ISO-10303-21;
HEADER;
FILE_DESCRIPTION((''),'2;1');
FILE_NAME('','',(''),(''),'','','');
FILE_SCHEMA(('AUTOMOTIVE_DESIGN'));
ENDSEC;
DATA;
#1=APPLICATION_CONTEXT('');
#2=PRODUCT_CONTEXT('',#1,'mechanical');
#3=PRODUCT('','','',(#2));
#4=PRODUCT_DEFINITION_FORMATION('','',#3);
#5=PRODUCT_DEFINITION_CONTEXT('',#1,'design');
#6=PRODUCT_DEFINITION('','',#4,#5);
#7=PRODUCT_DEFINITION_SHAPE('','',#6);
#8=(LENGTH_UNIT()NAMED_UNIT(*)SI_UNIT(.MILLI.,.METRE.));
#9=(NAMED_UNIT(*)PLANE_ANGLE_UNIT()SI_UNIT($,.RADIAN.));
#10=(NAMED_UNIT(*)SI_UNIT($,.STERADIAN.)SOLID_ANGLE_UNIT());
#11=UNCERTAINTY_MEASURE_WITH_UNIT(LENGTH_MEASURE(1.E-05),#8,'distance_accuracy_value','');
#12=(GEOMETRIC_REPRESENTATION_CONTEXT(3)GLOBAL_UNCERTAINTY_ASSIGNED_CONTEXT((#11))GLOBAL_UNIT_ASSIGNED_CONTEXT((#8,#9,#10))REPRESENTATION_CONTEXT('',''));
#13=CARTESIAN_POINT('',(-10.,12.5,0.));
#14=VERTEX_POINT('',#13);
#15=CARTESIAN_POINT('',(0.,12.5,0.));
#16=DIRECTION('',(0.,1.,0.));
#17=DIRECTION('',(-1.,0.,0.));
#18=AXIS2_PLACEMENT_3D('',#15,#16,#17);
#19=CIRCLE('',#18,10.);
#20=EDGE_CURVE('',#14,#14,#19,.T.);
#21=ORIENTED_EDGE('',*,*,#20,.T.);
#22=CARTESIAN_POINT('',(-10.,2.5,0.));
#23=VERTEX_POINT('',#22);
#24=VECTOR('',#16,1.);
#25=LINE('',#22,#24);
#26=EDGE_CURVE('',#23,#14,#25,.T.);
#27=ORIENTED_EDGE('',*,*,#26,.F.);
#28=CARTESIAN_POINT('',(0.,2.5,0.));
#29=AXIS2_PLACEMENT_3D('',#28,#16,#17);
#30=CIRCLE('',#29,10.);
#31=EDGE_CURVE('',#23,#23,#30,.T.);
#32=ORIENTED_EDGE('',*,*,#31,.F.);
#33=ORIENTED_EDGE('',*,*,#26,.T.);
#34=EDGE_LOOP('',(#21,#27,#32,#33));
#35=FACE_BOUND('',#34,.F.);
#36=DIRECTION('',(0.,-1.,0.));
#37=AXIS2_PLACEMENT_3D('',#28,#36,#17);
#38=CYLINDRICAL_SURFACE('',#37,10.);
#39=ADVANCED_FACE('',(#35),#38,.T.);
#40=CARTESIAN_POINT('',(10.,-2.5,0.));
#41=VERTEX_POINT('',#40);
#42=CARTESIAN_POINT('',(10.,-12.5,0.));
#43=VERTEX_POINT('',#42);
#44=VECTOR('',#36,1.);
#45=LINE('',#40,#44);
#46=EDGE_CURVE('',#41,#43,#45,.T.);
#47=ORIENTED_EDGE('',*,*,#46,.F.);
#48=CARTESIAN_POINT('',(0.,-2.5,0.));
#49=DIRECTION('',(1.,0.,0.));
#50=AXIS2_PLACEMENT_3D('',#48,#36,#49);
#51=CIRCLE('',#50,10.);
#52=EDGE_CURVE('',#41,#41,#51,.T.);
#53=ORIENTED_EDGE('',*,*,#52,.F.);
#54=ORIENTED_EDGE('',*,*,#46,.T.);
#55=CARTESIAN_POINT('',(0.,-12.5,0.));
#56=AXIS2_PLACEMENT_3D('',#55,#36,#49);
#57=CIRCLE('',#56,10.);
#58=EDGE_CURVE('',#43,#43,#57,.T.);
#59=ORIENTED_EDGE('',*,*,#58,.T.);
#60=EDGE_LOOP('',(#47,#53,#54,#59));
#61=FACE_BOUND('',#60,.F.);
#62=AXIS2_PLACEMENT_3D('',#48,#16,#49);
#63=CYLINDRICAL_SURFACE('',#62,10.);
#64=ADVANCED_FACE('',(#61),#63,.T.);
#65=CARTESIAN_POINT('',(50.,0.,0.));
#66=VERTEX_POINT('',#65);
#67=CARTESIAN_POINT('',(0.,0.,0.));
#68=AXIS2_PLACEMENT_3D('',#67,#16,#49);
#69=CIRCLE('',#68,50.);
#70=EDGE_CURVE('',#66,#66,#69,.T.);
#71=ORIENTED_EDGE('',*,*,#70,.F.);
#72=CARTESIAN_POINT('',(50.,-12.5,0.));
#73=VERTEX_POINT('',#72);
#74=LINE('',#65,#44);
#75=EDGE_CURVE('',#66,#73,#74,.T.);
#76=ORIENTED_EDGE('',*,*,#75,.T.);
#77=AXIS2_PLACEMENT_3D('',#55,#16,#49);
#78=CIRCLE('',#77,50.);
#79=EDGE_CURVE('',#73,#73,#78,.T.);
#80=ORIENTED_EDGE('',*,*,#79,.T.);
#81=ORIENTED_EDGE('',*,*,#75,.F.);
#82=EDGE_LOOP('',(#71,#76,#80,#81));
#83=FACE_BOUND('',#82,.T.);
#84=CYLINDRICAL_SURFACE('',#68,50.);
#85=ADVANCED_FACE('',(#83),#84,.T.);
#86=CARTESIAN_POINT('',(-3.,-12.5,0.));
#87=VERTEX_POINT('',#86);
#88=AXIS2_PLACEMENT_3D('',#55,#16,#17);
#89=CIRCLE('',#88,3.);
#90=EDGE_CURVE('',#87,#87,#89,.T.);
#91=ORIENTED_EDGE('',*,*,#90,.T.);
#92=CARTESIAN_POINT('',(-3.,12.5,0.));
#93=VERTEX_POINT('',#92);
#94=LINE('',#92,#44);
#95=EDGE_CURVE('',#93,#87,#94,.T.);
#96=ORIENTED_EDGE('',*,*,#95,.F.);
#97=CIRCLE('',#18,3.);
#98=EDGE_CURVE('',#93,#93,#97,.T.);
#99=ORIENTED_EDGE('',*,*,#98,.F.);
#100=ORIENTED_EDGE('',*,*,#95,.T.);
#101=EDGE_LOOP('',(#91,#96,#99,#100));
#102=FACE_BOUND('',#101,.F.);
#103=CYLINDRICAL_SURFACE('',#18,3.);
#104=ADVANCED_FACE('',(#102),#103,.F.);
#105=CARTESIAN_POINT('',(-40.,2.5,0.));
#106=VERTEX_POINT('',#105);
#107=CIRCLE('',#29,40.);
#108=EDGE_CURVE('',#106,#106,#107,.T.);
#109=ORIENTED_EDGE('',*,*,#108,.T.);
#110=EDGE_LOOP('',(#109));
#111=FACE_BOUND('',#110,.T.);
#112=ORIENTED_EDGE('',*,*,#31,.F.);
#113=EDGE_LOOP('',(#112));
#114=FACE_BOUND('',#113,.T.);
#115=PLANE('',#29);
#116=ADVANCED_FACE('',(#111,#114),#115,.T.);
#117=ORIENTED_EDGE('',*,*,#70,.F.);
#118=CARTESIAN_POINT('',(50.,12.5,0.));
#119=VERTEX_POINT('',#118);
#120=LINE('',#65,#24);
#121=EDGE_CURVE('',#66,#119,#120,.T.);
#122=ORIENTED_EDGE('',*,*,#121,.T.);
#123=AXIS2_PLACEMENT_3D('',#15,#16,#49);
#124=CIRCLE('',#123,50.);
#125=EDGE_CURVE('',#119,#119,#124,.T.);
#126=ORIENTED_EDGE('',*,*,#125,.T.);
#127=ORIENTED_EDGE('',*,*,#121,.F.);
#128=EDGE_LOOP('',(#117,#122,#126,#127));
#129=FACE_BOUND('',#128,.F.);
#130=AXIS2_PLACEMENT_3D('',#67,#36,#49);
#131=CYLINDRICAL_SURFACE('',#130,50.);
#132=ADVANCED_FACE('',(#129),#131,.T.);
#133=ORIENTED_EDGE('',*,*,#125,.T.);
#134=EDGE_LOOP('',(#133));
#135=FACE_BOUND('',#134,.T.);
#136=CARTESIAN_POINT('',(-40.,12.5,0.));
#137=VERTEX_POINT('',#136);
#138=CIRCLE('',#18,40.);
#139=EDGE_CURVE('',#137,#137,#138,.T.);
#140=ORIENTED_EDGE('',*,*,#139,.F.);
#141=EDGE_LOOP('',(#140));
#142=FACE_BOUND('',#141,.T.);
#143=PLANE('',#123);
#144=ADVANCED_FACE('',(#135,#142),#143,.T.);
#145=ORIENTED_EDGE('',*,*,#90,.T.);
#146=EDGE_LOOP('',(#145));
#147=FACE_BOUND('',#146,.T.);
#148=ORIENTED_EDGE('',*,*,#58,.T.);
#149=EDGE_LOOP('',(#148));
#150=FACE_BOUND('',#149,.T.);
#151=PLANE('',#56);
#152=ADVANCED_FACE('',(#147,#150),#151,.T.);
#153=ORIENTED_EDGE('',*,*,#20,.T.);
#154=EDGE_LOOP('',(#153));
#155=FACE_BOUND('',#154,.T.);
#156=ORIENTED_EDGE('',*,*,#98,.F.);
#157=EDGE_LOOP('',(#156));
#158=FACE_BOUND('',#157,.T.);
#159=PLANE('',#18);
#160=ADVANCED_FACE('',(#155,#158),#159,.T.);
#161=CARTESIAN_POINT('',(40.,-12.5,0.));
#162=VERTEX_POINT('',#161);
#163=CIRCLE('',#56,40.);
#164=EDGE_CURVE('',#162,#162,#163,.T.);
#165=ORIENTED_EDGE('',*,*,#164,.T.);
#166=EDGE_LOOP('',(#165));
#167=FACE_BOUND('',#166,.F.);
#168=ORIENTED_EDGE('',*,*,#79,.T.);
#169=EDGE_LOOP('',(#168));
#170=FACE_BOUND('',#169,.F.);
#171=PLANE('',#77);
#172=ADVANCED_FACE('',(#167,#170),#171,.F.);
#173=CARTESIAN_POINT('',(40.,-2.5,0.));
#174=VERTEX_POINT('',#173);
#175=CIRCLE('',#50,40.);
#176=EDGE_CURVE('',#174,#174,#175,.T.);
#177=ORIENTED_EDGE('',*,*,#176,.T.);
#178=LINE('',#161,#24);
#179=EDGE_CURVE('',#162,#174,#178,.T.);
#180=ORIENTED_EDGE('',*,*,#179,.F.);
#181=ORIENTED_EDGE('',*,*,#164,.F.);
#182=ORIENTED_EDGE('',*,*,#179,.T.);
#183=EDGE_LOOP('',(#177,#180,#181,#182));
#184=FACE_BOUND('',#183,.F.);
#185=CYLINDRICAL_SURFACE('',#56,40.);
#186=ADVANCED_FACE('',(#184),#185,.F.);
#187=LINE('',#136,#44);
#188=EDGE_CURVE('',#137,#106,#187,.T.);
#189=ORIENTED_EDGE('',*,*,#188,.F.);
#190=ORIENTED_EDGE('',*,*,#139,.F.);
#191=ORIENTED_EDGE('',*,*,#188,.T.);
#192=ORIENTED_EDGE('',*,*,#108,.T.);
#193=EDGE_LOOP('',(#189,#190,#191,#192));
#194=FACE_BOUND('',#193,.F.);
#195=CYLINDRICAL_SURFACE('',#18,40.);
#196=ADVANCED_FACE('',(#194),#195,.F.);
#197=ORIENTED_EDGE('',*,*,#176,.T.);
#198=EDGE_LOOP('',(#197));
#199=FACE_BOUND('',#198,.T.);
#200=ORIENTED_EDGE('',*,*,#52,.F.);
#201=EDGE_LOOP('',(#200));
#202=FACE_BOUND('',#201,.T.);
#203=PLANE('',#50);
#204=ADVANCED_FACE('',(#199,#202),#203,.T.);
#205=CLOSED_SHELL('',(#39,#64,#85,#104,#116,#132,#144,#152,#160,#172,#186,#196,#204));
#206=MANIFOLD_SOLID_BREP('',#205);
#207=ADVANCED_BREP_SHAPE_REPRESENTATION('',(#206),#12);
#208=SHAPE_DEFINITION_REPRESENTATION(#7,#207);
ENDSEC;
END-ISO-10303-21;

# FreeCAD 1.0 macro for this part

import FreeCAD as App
import Part
import Sketcher
from FreeCAD import Vector

doc = App.newDocument("Part")
body = doc.addObject("PartDesign::Body", "Body")

sketch1 = body.newObject("Sketcher::SketchObject", "Sketch")
sketch1.AttachmentSupport = (doc.getObject("XZ_Plane"), [""])
sketch1.MapMode = "FlatFace"
sketch1.addGeometry(Part.Circle(Vector(0, 0, 0), Vector(0, 0, 1), 50), False)
sketch1.addConstraint([
    Sketcher.Constraint("Coincident", 0, 3, -1, 1),
    Sketcher.Constraint("Diameter", 0, 100.0),
])
pad1 = body.newObject("PartDesign::Pad", "Pad")
pad1.Profile = sketch1
pad1.Length = 25
pad1.Midplane = True

sketch2 = body.newObject("Sketcher::SketchObject", "Sketch001")
sketch2.AttachmentSupport = (doc.getObject("XZ_Plane"), [""])
sketch2.MapMode = "FlatFace"
sketch2.AttachmentOffset = App.Placement(Vector(0, 0, 12.5), App.Rotation())
sketch2.addGeometry(Part.Circle(Vector(0, 0, 0), Vector(0, 0, 1), 40), False)
sketch2.addConstraint([
    Sketcher.Constraint("Coincident", 0, 3, -1, 1),
    Sketcher.Constraint("Diameter", 0, 80.0),
])
pocket1 = body.newObject("PartDesign::Pocket", "Pocket")
pocket1.Profile = sketch2
pocket1.Length = 10

sketch3 = body.newObject("Sketcher::SketchObject", "Sketch002")
sketch3.AttachmentSupport = (doc.getObject("XZ_Plane"), [""])
sketch3.MapMode = "FlatFace"
sketch3.AttachmentOffset = App.Placement(Vector(0, 0, -12.5), App.Rotation())
sketch3.addGeometry(Part.Circle(Vector(0, 0, 0), Vector(0, 0, 1), 40), False)
sketch3.addConstraint([
    Sketcher.Constraint("Coincident", 0, 3, -1, 1),
    Sketcher.Constraint("Diameter", 0, 80.0),
])
pocket2 = body.newObject("PartDesign::Pocket", "Pocket001")
pocket2.Profile = sketch3
pocket2.Length = 10
pocket2.Reversed = True

sketch4 = body.newObject("Sketcher::SketchObject", "Sketch003")
sketch4.AttachmentSupport = (doc.getObject("XZ_Plane"), [""])
sketch4.MapMode = "FlatFace"
sketch4.AttachmentOffset = App.Placement(Vector(0, 0, 2.5), App.Rotation())
sketch4.addGeometry(Part.Circle(Vector(0, 0, 0), Vector(0, 0, 1), 10), False)
sketch4.addConstraint([
    Sketcher.Constraint("Coincident", 0, 3, -1, 1),
    Sketcher.Constraint("Diameter", 0, 20.0),
])
pad2 = body.newObject("PartDesign::Pad", "Pad001")
pad2.Profile = sketch4
pad2.Length = 10

sketch5 = body.newObject("Sketcher::SketchObject", "Sketch004")
sketch5.AttachmentSupport = (doc.getObject("XZ_Plane"), [""])
sketch5.MapMode = "FlatFace"
sketch5.AttachmentOffset = App.Placement(Vector(0, 0, -2.5), App.Rotation())
sketch5.addGeometry(Part.Circle(Vector(0, 0, 0), Vector(0, 0, 1), 10), False)
sketch5.addConstraint([
    Sketcher.Constraint("Coincident", 0, 3, -1, 1),
    Sketcher.Constraint("Diameter", 0, 20.0),
])
pad3 = body.newObject("PartDesign::Pad", "Pad002")
pad3.Profile = sketch5
pad3.Length = 10
pad3.Reversed = True

sketch6 = body.newObject("Sketcher::SketchObject", "Sketch005")
sketch6.AttachmentSupport = (doc.getObject("XZ_Plane"), [""])
sketch6.MapMode = "FlatFace"
sketch6.AttachmentOffset = App.Placement(Vector(0, 0, -12.5), App.Rotation())
sketch6.addGeometry(Part.Circle(Vector(0, 0, 0), Vector(0, 0, 1), 3), False)
sketch6.addConstraint([
    Sketcher.Constraint("Coincident", 0, 3, -1, 1),
    Sketcher.Constraint("Diameter", 0, 6.0),
])
pocket3 = body.newObject("PartDesign::Pocket", "Pocket002")
pocket3.Profile = sketch6
pocket3.Length = 25
pocket3.Reversed = True

doc.recompute()
